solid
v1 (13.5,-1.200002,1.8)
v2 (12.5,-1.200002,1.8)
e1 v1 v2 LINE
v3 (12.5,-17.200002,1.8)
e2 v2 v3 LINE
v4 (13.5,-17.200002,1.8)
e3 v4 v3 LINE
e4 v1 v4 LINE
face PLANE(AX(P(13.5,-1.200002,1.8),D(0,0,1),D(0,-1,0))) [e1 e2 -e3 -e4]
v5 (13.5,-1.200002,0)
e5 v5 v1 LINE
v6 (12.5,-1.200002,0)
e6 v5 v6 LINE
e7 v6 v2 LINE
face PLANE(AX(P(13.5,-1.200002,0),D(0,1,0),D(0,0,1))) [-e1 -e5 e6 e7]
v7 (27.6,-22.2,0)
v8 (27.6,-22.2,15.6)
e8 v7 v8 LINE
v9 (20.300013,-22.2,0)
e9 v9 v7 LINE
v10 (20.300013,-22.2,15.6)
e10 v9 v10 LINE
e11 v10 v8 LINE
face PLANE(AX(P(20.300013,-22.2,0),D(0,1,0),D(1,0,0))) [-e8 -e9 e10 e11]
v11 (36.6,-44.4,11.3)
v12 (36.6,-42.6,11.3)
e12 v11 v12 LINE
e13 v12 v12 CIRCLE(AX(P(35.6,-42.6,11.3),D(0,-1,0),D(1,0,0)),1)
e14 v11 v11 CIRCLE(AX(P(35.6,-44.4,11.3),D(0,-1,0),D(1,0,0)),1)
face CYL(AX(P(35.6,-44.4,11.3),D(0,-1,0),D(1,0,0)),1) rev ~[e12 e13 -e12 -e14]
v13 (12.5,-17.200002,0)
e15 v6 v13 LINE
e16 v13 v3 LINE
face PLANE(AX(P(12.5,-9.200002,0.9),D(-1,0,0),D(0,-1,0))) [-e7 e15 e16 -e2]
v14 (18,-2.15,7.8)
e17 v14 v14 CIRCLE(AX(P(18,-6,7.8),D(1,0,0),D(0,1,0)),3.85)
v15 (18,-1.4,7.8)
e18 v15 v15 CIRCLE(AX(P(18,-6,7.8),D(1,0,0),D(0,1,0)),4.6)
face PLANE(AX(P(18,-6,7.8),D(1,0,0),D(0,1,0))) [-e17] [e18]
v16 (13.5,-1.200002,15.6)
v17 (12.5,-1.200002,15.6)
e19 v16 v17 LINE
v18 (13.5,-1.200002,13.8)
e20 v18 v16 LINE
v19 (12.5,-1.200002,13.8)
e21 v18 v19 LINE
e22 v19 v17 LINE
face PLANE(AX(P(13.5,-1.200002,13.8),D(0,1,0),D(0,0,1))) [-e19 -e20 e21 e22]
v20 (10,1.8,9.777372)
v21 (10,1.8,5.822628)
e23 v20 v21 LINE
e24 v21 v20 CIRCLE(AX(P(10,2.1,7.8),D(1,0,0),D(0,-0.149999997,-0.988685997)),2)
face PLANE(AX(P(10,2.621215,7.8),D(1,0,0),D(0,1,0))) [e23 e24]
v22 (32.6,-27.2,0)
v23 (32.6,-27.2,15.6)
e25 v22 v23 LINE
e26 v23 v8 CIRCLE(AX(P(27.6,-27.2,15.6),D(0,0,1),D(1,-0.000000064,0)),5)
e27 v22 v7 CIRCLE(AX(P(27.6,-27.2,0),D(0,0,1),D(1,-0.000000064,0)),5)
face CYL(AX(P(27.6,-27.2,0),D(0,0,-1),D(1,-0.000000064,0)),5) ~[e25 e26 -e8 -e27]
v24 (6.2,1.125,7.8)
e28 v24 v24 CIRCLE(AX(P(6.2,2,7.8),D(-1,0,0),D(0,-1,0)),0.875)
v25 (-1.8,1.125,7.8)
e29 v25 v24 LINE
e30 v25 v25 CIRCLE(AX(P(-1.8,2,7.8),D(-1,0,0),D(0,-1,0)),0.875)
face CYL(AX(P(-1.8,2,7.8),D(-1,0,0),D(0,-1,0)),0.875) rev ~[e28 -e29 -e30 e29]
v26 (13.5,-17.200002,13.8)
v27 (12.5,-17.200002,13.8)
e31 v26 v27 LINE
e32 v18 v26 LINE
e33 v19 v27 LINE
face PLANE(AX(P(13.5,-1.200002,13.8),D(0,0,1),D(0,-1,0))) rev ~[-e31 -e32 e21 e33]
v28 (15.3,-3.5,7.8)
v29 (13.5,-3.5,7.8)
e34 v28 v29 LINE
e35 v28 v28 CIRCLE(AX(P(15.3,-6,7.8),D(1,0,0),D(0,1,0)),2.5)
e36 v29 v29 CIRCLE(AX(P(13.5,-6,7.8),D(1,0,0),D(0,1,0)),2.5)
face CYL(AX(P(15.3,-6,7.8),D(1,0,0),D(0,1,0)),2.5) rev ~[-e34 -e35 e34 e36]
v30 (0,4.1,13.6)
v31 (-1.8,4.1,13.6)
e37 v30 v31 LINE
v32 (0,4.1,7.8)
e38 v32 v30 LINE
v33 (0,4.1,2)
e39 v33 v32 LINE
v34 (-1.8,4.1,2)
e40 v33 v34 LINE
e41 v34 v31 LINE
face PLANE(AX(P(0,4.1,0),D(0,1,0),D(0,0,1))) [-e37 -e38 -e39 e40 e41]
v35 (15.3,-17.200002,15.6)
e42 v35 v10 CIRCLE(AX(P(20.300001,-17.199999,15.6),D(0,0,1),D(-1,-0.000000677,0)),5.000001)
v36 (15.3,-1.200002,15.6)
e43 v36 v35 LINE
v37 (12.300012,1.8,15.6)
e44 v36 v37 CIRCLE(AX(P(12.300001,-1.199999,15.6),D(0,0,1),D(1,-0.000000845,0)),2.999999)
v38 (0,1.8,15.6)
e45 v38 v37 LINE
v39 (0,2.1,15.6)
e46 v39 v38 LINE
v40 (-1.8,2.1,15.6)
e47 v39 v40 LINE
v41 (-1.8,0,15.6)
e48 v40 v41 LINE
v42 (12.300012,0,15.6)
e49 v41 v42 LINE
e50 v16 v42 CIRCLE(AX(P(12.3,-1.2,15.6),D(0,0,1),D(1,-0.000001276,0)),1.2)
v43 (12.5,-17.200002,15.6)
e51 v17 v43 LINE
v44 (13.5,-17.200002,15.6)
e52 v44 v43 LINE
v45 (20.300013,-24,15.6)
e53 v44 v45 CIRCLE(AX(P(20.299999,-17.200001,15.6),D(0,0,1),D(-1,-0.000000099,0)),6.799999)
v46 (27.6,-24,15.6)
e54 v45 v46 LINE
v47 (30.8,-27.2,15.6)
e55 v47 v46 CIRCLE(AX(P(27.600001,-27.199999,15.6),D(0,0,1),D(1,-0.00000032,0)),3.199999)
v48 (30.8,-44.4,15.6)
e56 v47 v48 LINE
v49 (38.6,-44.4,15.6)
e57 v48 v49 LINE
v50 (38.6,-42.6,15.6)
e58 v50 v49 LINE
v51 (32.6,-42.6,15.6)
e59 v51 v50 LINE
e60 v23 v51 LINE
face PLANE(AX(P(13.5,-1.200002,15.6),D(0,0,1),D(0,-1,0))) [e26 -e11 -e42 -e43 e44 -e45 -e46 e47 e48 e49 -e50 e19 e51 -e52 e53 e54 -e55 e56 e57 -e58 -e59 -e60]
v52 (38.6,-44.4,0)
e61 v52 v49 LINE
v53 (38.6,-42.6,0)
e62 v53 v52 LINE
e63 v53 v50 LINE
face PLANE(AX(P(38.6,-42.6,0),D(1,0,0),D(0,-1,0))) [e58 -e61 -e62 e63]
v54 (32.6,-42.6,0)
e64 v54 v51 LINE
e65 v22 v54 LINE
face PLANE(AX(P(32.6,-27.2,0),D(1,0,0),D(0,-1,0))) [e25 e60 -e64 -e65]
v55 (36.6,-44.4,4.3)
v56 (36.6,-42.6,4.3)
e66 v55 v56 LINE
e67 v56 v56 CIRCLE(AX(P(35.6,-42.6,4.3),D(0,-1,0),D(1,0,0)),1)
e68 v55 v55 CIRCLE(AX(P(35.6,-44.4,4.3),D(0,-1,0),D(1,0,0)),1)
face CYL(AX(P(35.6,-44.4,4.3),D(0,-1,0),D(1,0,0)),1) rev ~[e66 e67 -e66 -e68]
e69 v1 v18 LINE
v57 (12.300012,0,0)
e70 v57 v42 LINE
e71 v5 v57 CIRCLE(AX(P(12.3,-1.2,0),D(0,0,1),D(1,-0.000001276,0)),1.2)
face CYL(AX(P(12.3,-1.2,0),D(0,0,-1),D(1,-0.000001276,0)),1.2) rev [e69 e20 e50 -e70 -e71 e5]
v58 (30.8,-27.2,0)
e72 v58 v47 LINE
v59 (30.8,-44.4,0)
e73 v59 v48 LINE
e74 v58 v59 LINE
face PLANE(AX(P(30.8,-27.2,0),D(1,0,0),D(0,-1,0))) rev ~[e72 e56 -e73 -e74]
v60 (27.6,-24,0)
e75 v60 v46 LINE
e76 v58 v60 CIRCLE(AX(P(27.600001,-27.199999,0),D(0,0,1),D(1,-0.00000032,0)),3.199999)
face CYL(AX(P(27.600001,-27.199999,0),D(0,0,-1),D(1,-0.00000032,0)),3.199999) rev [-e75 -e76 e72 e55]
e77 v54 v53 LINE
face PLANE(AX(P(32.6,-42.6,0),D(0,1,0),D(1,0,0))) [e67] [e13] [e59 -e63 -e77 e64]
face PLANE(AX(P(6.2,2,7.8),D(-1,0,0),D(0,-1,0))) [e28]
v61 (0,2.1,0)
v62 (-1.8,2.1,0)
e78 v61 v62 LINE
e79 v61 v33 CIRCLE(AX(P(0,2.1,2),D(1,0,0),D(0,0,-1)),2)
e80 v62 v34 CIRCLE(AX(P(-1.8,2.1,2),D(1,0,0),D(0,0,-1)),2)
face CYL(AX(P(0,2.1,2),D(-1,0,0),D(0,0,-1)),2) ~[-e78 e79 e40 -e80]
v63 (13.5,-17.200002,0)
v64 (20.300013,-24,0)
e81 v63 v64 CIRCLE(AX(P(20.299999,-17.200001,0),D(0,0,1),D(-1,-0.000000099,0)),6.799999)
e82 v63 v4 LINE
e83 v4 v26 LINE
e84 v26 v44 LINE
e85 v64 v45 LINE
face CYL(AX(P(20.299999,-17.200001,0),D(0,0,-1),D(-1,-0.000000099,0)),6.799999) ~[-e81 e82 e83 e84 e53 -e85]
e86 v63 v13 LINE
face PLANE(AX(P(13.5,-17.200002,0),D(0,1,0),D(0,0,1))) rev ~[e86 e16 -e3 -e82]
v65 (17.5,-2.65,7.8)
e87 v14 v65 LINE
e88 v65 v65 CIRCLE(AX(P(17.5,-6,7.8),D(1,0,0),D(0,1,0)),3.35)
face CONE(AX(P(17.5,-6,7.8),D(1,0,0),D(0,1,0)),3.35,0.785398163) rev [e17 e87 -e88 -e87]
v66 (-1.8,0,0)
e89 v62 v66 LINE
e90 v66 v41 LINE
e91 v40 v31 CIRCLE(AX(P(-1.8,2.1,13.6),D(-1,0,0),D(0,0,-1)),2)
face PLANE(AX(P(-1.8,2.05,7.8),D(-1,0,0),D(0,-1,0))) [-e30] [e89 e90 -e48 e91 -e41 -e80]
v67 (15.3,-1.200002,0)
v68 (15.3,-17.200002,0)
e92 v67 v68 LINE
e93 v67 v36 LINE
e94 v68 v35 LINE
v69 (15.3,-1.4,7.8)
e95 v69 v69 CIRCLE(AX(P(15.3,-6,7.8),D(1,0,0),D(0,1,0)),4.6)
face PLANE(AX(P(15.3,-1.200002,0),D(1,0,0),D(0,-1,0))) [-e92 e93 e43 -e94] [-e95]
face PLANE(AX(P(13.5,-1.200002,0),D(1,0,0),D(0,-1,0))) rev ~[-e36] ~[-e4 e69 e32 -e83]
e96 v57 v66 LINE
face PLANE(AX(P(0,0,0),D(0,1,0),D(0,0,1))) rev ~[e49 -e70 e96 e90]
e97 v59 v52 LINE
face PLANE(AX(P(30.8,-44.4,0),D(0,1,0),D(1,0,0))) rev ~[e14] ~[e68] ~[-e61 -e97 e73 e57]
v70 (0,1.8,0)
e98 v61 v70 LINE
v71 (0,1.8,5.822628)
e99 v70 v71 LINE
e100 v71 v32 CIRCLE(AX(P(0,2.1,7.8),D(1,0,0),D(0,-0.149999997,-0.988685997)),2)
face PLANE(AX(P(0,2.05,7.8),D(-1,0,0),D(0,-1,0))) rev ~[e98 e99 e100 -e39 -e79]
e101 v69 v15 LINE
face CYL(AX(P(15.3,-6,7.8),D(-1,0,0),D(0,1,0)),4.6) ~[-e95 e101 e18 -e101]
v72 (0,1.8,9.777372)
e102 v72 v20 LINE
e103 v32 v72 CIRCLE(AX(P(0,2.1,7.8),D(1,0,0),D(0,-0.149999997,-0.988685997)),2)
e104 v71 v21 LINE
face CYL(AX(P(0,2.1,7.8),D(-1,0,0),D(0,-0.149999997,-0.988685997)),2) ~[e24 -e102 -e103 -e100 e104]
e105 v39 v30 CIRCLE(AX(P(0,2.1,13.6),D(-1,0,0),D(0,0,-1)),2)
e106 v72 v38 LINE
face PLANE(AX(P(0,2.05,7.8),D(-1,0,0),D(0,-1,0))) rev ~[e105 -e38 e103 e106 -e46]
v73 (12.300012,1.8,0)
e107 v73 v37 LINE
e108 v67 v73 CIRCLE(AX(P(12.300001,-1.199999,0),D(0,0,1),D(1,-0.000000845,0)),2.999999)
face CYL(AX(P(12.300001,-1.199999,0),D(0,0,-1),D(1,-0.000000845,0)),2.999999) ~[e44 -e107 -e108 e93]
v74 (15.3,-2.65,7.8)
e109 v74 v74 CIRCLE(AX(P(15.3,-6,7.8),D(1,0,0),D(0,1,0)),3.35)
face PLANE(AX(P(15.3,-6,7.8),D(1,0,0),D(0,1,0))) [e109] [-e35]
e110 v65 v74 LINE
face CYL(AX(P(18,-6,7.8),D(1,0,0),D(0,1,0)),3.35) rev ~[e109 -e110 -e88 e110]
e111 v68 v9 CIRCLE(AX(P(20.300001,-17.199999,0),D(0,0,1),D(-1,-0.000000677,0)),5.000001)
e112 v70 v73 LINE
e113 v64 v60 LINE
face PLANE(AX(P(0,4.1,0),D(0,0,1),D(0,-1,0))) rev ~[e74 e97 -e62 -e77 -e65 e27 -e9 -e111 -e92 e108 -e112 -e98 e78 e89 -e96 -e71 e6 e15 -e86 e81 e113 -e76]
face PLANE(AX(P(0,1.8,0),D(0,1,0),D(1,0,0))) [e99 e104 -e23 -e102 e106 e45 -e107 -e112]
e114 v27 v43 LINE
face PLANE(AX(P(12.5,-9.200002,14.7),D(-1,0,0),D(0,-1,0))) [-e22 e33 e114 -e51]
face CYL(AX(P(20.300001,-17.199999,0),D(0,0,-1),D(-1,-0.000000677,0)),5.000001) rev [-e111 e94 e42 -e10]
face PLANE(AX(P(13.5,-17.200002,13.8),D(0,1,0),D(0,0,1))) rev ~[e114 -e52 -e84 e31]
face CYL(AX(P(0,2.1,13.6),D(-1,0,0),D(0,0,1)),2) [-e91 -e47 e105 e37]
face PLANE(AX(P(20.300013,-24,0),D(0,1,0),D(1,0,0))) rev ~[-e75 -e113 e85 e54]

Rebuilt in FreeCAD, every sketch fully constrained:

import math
import FreeCAD as App
import Part
import Sketcher
from FreeCAD import Vector


def edges_at(feature, points):
    """Names of the edges that pass closest to the given points."""
    edges = feature.Shape.Edges
    near = lambda p: min(range(len(edges)), key=lambda i: edges[i].distToShape(Part.Vertex(*p))[0])
    return sorted({f"Edge{near(p) + 1}" for p in points})

doc = App.newDocument("Part")
body = doc.addObject("PartDesign::Body", "Body")

# Sketch on XY plane
sketch1 = body.newObject("Sketcher::SketchObject", "Sketch")
sketch1.AttachmentSupport = (doc.getObject("XY_Plane"), [""])
sketch1.MapMode = "FlatFace"
sketch1.addGeometry([
    Part.LineSegment(Vector(0, 1.8, 0), Vector(0, 0, 0)),  # 0
    Part.LineSegment(Vector(0, 0, 0), Vector(12.3, 0, 0)),  # 1
    Part.ArcOfCircle(Part.Circle(Vector(12.3, -1.2, 0), Vector(0, 0, 1), 1.2), math.radians(0), math.radians(90)),  # 2
    Part.LineSegment(Vector(13.5, -1.2, 0), Vector(13.5, -17.2, 0)),  # 3
    Part.ArcOfCircle(Part.Circle(Vector(20.3, -17.2, 0), Vector(0, 0, 1), 6.8), math.radians(-180), math.radians(-90)),  # 4
    Part.LineSegment(Vector(20.3, -24, 0), Vector(27.6, -24, 0)),  # 5
    Part.ArcOfCircle(Part.Circle(Vector(27.6, -27.2, 0), Vector(0, 0, 1), 3.2), math.radians(0), math.radians(90)),  # 6
    Part.LineSegment(Vector(30.8, -27.2, 0), Vector(30.8, -44.4, 0)),  # 7
    Part.LineSegment(Vector(30.8, -44.4, 0), Vector(38.6, -44.4, 0)),  # 8
    Part.LineSegment(Vector(38.6, -44.4, 0), Vector(38.6, -42.6, 0)),  # 9
    Part.LineSegment(Vector(38.6, -42.6, 0), Vector(32.6, -42.6, 0)),  # 10
    Part.LineSegment(Vector(32.6, -42.6, 0), Vector(32.6, -27.2, 0)),  # 11
    Part.ArcOfCircle(Part.Circle(Vector(27.6, -27.2, 0), Vector(0, 0, 1), 5), math.radians(0), math.radians(90)),  # 12
    Part.LineSegment(Vector(27.6, -22.2, 0), Vector(20.3, -22.2, 0)),  # 13
    Part.ArcOfCircle(Part.Circle(Vector(20.3, -17.2, 0), Vector(0, 0, 1), 5), math.radians(-180), math.radians(-90)),  # 14
    Part.LineSegment(Vector(15.3, -17.2, 0), Vector(15.3, -1.2, 0)),  # 15
    Part.ArcOfCircle(Part.Circle(Vector(12.3, -1.2, 0), Vector(0, 0, 1), 3), math.radians(0), math.radians(90)),  # 16
    Part.LineSegment(Vector(12.3, 1.8, 0), Vector(0, 1.8, 0)),  # 17
], False)
sketch1.addConstraint([
    Sketcher.Constraint("Coincident", 0, 2, 1, 1),
    Sketcher.Constraint("Coincident", 1, 2, 2, 2),
    Sketcher.Constraint("Tangent", 2, 1, 3, 1),
    Sketcher.Constraint("Tangent", 3, 2, 4, 1),
    Sketcher.Constraint("Coincident", 4, 2, 5, 1),
    Sketcher.Constraint("Tangent", 5, 2, 6, 2),
    Sketcher.Constraint("Tangent", 6, 1, 7, 1),
    Sketcher.Constraint("Coincident", 7, 2, 8, 1),
    Sketcher.Constraint("Coincident", 8, 2, 9, 1),
    Sketcher.Constraint("Coincident", 9, 2, 10, 1),
    Sketcher.Constraint("Coincident", 10, 2, 11, 1),
    Sketcher.Constraint("Tangent", 11, 2, 12, 1),
    Sketcher.Constraint("Tangent", 12, 2, 13, 1),
    Sketcher.Constraint("Coincident", 13, 2, 14, 2),
    Sketcher.Constraint("Tangent", 14, 1, 15, 1),
    Sketcher.Constraint("Tangent", 15, 2, 16, 1),
    Sketcher.Constraint("Coincident", 16, 2, 17, 1),
    Sketcher.Constraint("Coincident", 17, 2, 0, 1),
    Sketcher.Constraint("Vertical", 0),
    Sketcher.Constraint("Horizontal", 1),
    Sketcher.Constraint("Vertical", 3),
    Sketcher.Constraint("Horizontal", 5),
    Sketcher.Constraint("Vertical", 7),
    Sketcher.Constraint("Horizontal", 8),
    Sketcher.Constraint("Vertical", 9),
    Sketcher.Constraint("Horizontal", 10),
    Sketcher.Constraint("Vertical", 11),
    Sketcher.Constraint("Horizontal", 13),
    Sketcher.Constraint("Vertical", 15),
    Sketcher.Constraint("Horizontal", 17),
    Sketcher.Constraint("Coincident", 0, 2, -1, 1),
    Sketcher.Constraint("Coincident", 12, 3, 6, 3),
    Sketcher.Constraint("Coincident", 14, 3, 4, 3),
    Sketcher.Constraint("Coincident", 16, 3, 2, 3),
    Sketcher.Constraint("Equal", 12, 14),
    Sketcher.Constraint("Vertical", 4, 2, 13, 2),
    Sketcher.Constraint("Vertical", 1, 2, 16, 2),
    Sketcher.Constraint("Equal", 0, 9),
    Sketcher.Constraint("Radius", 12, 5.0),
    Sketcher.Constraint("Radius", 16, 2.999999),
    Sketcher.Constraint("Radius", 2, 1.2),
    Sketcher.Constraint("DistanceX", 10, 2, 10, 1, 6.0),
    Sketcher.Constraint("DistanceY", 3, 2, 3, 1, 16.0),
    Sketcher.Constraint("DistanceY", 7, 2, 7, 1, 17.2),
    Sketcher.Constraint("DistanceX", -1, 1, 2, 3, 12.3),
    Sketcher.Constraint("DistanceX", -1, 1, 6, 3, 27.600001),
    Sketcher.Constraint("DistanceX", 1, 1, 1, 2, 12.300012),
    Sketcher.Constraint("DistanceX", 5, 1, 5, 2, 7.299987),
])
pad1 = body.newObject("PartDesign::Pad", "Pad")
pad1.Profile = sketch1
pad1.Length = 15.6

# Sketch on YZ plane
sketch2 = body.newObject("Sketcher::SketchObject", "Sketch001")
sketch2.AttachmentSupport = (doc.getObject("YZ_Plane"), [""])
sketch2.MapMode = "FlatFace"
sketch2.AttachmentOffset = App.Placement(Vector(0, 0, 15.3), App.Rotation())
sketch2.addGeometry(Part.Circle(Vector(-6, 7.8, 0), Vector(0, 0, 1), 4.6), False)
sketch2.addConstraint([
    Sketcher.Constraint("Diameter", 0, 9.2),
    Sketcher.Constraint("DistanceX", 0, 3, -1, 1, 6.0),
    Sketcher.Constraint("DistanceY", -1, 1, 0, 3, 7.8),
])
pad2 = body.newObject("PartDesign::Pad", "Pad001")
pad2.Profile = sketch2
pad2.Length = 2.7

# Sketch on YZ plane
sketch3 = body.newObject("Sketcher::SketchObject", "Sketch002")
sketch3.AttachmentSupport = (doc.getObject("YZ_Plane"), [""])
sketch3.MapMode = "FlatFace"
sketch3.AttachmentOffset = App.Placement(Vector(0, 0, 18), App.Rotation())
sketch3.addGeometry(Part.Circle(Vector(-6, 7.8, 0), Vector(0, 0, 1), 3.4), False)
sketch3.addConstraint([
    Sketcher.Constraint("Diameter", 0, 6.7),
    Sketcher.Constraint("DistanceX", 0, 3, -1, 1, 6.0),
    Sketcher.Constraint("DistanceY", -1, 1, 0, 3, 7.8),
])
pocket1 = body.newObject("PartDesign::Pocket", "Pocket")
pocket1.Profile = sketch3
pocket1.Length = 2.7

# Sketch on YZ plane
sketch4 = body.newObject("Sketcher::SketchObject", "Sketch003")
sketch4.AttachmentSupport = (doc.getObject("YZ_Plane"), [""])
sketch4.MapMode = "FlatFace"
sketch4.AttachmentOffset = App.Placement(Vector(0, 0, 15.3), App.Rotation())
sketch4.addGeometry(Part.Circle(Vector(-6, 7.8, 0), Vector(0, 0, 1), 2.5), False)
sketch4.addConstraint([
    Sketcher.Constraint("Diameter", 0, 5.0),
    Sketcher.Constraint("DistanceX", 0, 3, -1, 1, 6.0),
    Sketcher.Constraint("DistanceY", -1, 1, 0, 3, 7.8),
])
pocket2 = body.newObject("PartDesign::Pocket", "Pocket001")
pocket2.Profile = sketch4
pocket2.Type = "ThroughAll"

# Sketch on YZ plane
sketch5 = body.newObject("Sketcher::SketchObject", "Sketch004")
sketch5.AttachmentSupport = (doc.getObject("YZ_Plane"), [""])
sketch5.MapMode = "FlatFace"
sketch5.addGeometry([
    Part.LineSegment(Vector(4.1, 15.6, 0), Vector(4.1, 0, 0)),
    Part.LineSegment(Vector(4.1, 0, 0), Vector(0, 0, 0)),
    Part.LineSegment(Vector(0, 0, 0), Vector(0, 15.6, 0)),
    Part.LineSegment(Vector(0, 15.6, 0), Vector(4.1, 15.6, 0)),
], False)
sketch5.addConstraint([
    Sketcher.Constraint("Coincident", 0, 2, 1, 1),
    Sketcher.Constraint("Coincident", 1, 2, 2, 1),
    Sketcher.Constraint("Coincident", 2, 2, 3, 1),
    Sketcher.Constraint("Coincident", 3, 2, 0, 1),
    Sketcher.Constraint("Vertical", 0),
    Sketcher.Constraint("Horizontal", 1),
    Sketcher.Constraint("Vertical", 2),
    Sketcher.Constraint("Horizontal", 3),
    Sketcher.Constraint("Coincident", 1, 2, -1, 1),
    Sketcher.Constraint("DistanceX", 1, 2, 1, 1, 4.1),
    Sketcher.Constraint("DistanceY", 0, 2, 0, 1, 15.6),
])
pad3 = body.newObject("PartDesign::Pad", "Pad002")
pad3.Profile = sketch5
pad3.Length = 1.8
pad3.Reversed = True

# Sketch on YZ plane
sketch6 = body.newObject("Sketcher::SketchObject", "Sketch005")
sketch6.AttachmentSupport = (doc.getObject("YZ_Plane"), [""])
sketch6.MapMode = "FlatFace"
sketch6.addGeometry([
    Part.ArcOfCircle(Part.Circle(Vector(2.1, 7.8, 0), Vector(0, 0, 1), 2), math.radians(-99), math.radians(99)),
    Part.LineSegment(Vector(1.8, 9.8, 0), Vector(1.8, 5.8, 0)),
], False)
sketch6.addConstraint([
    Sketcher.Constraint("Coincident", 0, 1, 1, 2),
    Sketcher.Constraint("Coincident", 1, 1, 0, 2),
    Sketcher.Constraint("Vertical", 1),
    Sketcher.Constraint("Radius", 0, 2.0),
    Sketcher.Constraint("DistanceX", -1, 1, 0, 3, 2.1),
    Sketcher.Constraint("DistanceY", -1, 1, 0, 3, 7.8),
    Sketcher.Constraint("DistanceX", -1, 1, 0, 1, 1.8),
])
pad4 = body.newObject("PartDesign::Pad", "Pad003")
pad4.Profile = sketch6
pad4.Length = 10

# Sketch on YZ plane
sketch7 = body.newObject("Sketcher::SketchObject", "Sketch006")
sketch7.AttachmentSupport = (doc.getObject("YZ_Plane"), [""])
sketch7.MapMode = "FlatFace"
sketch7.AttachmentOffset = App.Placement(Vector(0, 0, -1.8), App.Rotation())
sketch7.addGeometry(Part.Circle(Vector(2, 7.8, 0), Vector(0, 0, 1), 0.9), False)
sketch7.addConstraint([
    Sketcher.Constraint("Diameter", 0, 1.75),
    Sketcher.Constraint("DistanceX", -1, 1, 0, 3, 2.0),
    Sketcher.Constraint("DistanceY", -1, 1, 0, 3, 7.8),
])
pocket3 = body.newObject("PartDesign::Pocket", "Pocket002")
pocket3.Profile = sketch7
pocket3.Length = 8
pocket3.Reversed = True

# Sketch on XZ plane
sketch8 = body.newObject("Sketcher::SketchObject", "Sketch007")
sketch8.AttachmentSupport = (doc.getObject("XZ_Plane"), [""])
sketch8.MapMode = "FlatFace"
sketch8.AttachmentOffset = App.Placement(Vector(0, 0, 44.4), App.Rotation())
sketch8.addGeometry([
    Part.Circle(Vector(35.6, 11.3, 0), Vector(0, 0, 1), 1),
    Part.Circle(Vector(35.6, 4.3, 0), Vector(0, 0, 1), 1),
], False)
sketch8.addConstraint([
    Sketcher.Constraint("Equal", 0, 1),
    Sketcher.Constraint("Vertical", 0, 3, 1, 3),
    Sketcher.Constraint("Diameter", 0, 2.0),
    Sketcher.Constraint("DistanceY", 1, 3, 0, 3, 7.0),
    Sketcher.Constraint("DistanceX", -1, 1, 0, 3, 35.6),
    Sketcher.Constraint("DistanceY", -1, 1, 0, 3, 11.3),
])
pocket4 = body.newObject("PartDesign::Pocket", "Pocket003")
pocket4.Profile = sketch8
pocket4.Type = "ThroughAll"
doc.recompute()

fillet = body.newObject("PartDesign::Fillet", "Fillet")
fillet.Base = (pocket4, edges_at(pocket4, [(-0.9, 4.1, 0), (-0.9, 4.1, 15.6)]))
fillet.Radius = 2
doc.recompute()

chamfer = body.newObject("PartDesign::Chamfer", "Chamfer")
chamfer.Base = (fillet, edges_at(fillet, [(18, -9.35, 7.8)]))
chamfer.Size = 0.5

# Sketch on YZ plane
sketch9 = body.newObject("Sketcher::SketchObject", "Sketch008")
sketch9.AttachmentSupport = (doc.getObject("YZ_Plane"), [""])
sketch9.MapMode = "FlatFace"
sketch9.AttachmentOffset = App.Placement(Vector(0, 0, 13.5), App.Rotation())
sketch9.addGeometry([
    Part.LineSegment(Vector(-1.2, 15.6, 0), Vector(-1.2, 13.8, 0)),  # 0
    Part.LineSegment(Vector(-1.2, 13.8, 0), Vector(-17.2, 13.8, 0)),  # 1
    Part.LineSegment(Vector(-17.2, 13.8, 0), Vector(-17.2, 15.6, 0)),  # 2
    Part.LineSegment(Vector(-17.2, 15.6, 0), Vector(-1.2, 15.6, 0)),  # 3
    Part.LineSegment(Vector(-1.2, 1.8, 0), Vector(-1.2, 0, 0)),  # 4
    Part.LineSegment(Vector(-1.2, 0, 0), Vector(-17.2, 0, 0)),  # 5
    Part.LineSegment(Vector(-17.2, 0, 0), Vector(-17.2, 1.8, 0)),  # 6
    Part.LineSegment(Vector(-17.2, 1.8, 0), Vector(-1.2, 1.8, 0)),  # 7
], False)
sketch9.addConstraint([
    Sketcher.Constraint("Coincident", 0, 2, 1, 1),
    Sketcher.Constraint("Coincident", 1, 2, 2, 1),
    Sketcher.Constraint("Coincident", 2, 2, 3, 1),
    Sketcher.Constraint("Coincident", 3, 2, 0, 1),
    Sketcher.Constraint("Coincident", 4, 2, 5, 1),
    Sketcher.Constraint("Coincident", 5, 2, 6, 1),
    Sketcher.Constraint("Coincident", 6, 2, 7, 1),
    Sketcher.Constraint("Coincident", 7, 2, 4, 1),
    Sketcher.Constraint("Vertical", 0),
    Sketcher.Constraint("Horizontal", 1),
    Sketcher.Constraint("Vertical", 2),
    Sketcher.Constraint("Horizontal", 3),
    Sketcher.Constraint("Vertical", 4),
    Sketcher.Constraint("Horizontal", 5),
    Sketcher.Constraint("Vertical", 6),
    Sketcher.Constraint("Horizontal", 7),
    Sketcher.Constraint("PointOnObject", 4, 2, -1),
    Sketcher.Constraint("Vertical", 3, 2, 4, 2),
    Sketcher.Constraint("Vertical", 2, 2, 5, 2),
    Sketcher.Constraint("Equal", 2, 4),
    Sketcher.Constraint("DistanceX", 1, 2, 1, 1, 16.0),
    Sketcher.Constraint("DistanceY", 0, 2, 0, 1, 1.8),
    Sketcher.Constraint("DistanceY", 6, 2, 1, 2, 12.0),
    Sketcher.Constraint("DistanceX", 0, 2, -1, 1, 1.200002),
])
pad5 = body.newObject("PartDesign::Pad", "Pad004")
pad5.Profile = sketch9
pad5.Length = 1
pad5.Reversed = True

doc.recompute()
